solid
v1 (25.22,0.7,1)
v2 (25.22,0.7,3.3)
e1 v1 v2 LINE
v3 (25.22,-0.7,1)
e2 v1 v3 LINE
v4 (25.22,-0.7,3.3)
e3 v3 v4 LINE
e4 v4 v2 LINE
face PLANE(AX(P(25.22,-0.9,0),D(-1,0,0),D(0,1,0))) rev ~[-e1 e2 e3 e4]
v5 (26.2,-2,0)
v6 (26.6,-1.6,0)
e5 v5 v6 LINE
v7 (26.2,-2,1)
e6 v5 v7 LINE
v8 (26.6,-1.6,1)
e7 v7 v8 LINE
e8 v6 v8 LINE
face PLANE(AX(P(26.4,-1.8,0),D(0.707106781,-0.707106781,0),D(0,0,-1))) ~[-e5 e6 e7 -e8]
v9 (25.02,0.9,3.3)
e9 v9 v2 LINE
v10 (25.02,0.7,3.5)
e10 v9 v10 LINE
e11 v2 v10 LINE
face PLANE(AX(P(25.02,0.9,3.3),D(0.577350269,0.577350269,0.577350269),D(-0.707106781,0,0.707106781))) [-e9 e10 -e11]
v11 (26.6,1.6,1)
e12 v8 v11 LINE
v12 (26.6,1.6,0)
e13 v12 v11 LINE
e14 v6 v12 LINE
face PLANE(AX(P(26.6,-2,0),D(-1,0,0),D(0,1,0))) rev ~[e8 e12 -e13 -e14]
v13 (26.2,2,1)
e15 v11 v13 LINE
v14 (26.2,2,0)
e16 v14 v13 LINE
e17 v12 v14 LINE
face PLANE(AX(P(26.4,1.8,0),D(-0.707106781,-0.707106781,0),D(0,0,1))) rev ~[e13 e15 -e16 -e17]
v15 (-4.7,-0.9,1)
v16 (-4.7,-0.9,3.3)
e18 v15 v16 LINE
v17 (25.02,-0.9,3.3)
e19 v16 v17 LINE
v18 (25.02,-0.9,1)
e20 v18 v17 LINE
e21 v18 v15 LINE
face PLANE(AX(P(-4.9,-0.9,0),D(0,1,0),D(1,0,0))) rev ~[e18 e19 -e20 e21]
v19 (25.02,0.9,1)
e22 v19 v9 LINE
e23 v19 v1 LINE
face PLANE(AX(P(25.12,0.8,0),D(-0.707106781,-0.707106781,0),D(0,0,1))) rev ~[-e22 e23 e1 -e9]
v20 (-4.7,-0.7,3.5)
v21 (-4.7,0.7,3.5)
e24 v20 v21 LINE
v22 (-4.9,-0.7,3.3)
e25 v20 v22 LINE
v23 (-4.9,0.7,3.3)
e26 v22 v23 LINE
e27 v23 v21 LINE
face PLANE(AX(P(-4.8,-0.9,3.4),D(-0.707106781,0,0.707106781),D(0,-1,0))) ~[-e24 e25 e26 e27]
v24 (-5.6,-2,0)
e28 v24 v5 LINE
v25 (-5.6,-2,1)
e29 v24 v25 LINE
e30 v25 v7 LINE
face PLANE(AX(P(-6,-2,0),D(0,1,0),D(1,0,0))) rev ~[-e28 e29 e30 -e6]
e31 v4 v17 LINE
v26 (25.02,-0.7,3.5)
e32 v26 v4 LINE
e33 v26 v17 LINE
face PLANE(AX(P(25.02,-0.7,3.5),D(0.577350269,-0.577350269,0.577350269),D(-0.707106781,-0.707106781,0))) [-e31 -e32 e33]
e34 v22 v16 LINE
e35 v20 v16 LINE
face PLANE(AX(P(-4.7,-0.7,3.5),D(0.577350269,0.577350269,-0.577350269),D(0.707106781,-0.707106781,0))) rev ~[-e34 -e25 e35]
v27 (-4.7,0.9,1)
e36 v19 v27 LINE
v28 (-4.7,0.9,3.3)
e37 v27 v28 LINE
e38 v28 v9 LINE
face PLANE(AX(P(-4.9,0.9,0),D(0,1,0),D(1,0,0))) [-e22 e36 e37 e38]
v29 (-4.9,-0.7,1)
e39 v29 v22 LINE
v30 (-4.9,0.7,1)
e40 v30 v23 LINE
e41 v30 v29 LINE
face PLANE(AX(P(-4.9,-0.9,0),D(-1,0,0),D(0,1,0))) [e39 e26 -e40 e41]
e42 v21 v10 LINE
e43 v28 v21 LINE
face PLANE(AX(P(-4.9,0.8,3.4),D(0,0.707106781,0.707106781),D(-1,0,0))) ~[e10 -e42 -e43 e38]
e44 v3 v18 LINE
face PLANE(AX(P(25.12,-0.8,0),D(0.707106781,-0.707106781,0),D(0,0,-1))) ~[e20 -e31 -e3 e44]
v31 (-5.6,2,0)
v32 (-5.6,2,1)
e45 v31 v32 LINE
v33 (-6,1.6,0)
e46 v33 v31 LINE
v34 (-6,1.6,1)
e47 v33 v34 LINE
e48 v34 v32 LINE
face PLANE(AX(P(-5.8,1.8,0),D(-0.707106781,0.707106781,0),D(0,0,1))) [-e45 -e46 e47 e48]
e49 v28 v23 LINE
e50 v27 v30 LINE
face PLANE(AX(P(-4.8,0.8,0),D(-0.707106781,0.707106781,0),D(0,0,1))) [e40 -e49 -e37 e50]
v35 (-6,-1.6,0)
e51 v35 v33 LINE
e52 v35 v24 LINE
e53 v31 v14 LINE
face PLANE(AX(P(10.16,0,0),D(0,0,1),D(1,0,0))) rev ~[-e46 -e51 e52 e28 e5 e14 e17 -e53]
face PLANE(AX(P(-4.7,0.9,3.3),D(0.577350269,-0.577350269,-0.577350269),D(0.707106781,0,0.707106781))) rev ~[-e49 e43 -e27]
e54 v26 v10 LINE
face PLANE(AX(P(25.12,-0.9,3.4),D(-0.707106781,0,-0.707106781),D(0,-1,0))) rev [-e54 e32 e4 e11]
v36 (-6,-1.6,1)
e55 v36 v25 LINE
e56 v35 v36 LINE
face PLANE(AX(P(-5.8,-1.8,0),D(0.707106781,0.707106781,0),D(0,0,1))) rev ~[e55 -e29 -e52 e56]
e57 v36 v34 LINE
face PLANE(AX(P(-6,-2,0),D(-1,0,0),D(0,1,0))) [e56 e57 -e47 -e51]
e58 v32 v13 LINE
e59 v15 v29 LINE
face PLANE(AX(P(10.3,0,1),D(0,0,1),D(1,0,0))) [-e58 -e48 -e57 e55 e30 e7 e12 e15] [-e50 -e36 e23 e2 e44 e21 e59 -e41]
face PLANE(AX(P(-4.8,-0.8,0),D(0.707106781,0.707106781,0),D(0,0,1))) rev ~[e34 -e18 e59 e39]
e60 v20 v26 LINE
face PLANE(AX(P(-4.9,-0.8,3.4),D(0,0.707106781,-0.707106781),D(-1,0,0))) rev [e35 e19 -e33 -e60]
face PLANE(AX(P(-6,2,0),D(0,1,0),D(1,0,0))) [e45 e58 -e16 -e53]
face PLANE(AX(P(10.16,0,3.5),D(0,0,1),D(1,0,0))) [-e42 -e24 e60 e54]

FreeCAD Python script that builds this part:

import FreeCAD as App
import Part
import Sketcher
from FreeCAD import Vector


def edges_at(feature, points):
    """Names of the edges that pass closest to the given points."""
    edges = feature.Shape.Edges
    near = lambda p: min(range(len(edges)), key=lambda i: edges[i].distToShape(Part.Vertex(*p))[0])
    return sorted({f"Edge{near(p) + 1}" for p in points})


def add_polygon(sketch, points):
    """Adds a closed chain of lines whose ends are joined by coincident constraints."""
    first, n = sketch.GeometryCount, len(points)
    for a, b in zip(points, points[1:] + points[:1]):
        sketch.addGeometry(Part.LineSegment(App.Vector(*a, 0), App.Vector(*b, 0)), False)
    for i in range(n):
        sketch.addConstraint(Sketcher.Constraint("Coincident", first + i, 2, first + (i + 1) % n, 1))

doc = App.newDocument("Part")
params = doc.addObject("Spreadsheet::Sheet", "Params")
for row, (alias, value) in enumerate([
    ("sketch1_height", "1.8 mm"),
    ("sketch1_width", "30.12 mm"),
    ("pad1_length", "3.5 mm"),
    ("chamfer_size", "0.2 mm"),
    ("sketch2_height", "4 mm"),
    ("sketch2_width", "32.6 mm"),
    ("pad2_length", "1 mm"),
    ("chamfer2_size", "0.4 mm"),
], start=1):
    params.set(f"A{row}", alias)
    params.set(f"B{row}", "=" + value)
    params.setAlias(f"B{row}", alias)

body = doc.addObject("PartDesign::Body", "Body")

# Sketch on XY plane
sketch1 = doc.addObject("Sketcher::SketchObject", "Sketch")
body.addObject(sketch1)
sketch1.AttachmentSupport = (doc.XY_Plane, [""])
sketch1.MapMode = "FlatFace"
add_polygon(sketch1, [(-4.9, 0.9), (-4.9, -0.9), (25.2, -0.9), (25.2, 0.9)])  # lines 0-3
sketch1.addConstraint([
    Sketcher.Constraint("Vertical", 0),
    Sketcher.Constraint("Horizontal", 1),
    Sketcher.Constraint("Vertical", 2),
    Sketcher.Constraint("Horizontal", 3),
    Sketcher.Constraint("DistanceY", 0, 2, 0, 1, 1.8),
    Sketcher.Constraint("DistanceX", 1, 1, 1, 2, 30.12),
    Sketcher.Constraint("DistanceX", 0, 2, -1, 1, 4.9),
    Sketcher.Constraint("DistanceY", 0, 2, -1, 1, 0.9),
])
sketch1.setExpression("Constraints[8]", "Params.sketch1_height")
sketch1.setExpression("Constraints[9]", "Params.sketch1_width")
pad1 = doc.addObject("PartDesign::Pad", "Pad")
body.addObject(pad1)
pad1.Profile = sketch1
pad1.setExpression("Length", "Params.pad1_length")
doc.recompute()

chamfer = doc.addObject("PartDesign::Chamfer", "Chamfer")
body.addObject(chamfer)
chamfer.Base = (pad1, edges_at(pad1, [
    (-4.9, -0.9, 1.75),
    (-4.9, 0, 3.5),
    (-4.9, 0.9, 1.75),
    (25.22, -0.9, 1.75),
    (25.22, 0, 3.5),
    (25.22, 0.9, 1.75),
    (10.16, -0.9, 3.5),
    (10.16, 0.9, 3.5),
]))
chamfer.setExpression("Size", "Params.chamfer_size")
body2 = doc.addObject("PartDesign::Body", "Body001")

# Sketch on XY plane
sketch2 = doc.addObject("Sketcher::SketchObject", "Sketch001")
body2.addObject(sketch2)
sketch2.AttachmentSupport = (doc.getObject("XY_Plane001"), [""])
sketch2.MapMode = "FlatFace"
add_polygon(sketch2, [(-6, 2), (-6, -2), (26.6, -2), (26.6, 2)])  # lines 0-3
sketch2.addConstraint([
    Sketcher.Constraint("Vertical", 0),
    Sketcher.Constraint("Horizontal", 1),
    Sketcher.Constraint("Vertical", 2),
    Sketcher.Constraint("Horizontal", 3),
    Sketcher.Constraint("DistanceY", 0, 2, 0, 1, 4.0),
    Sketcher.Constraint("DistanceX", 1, 1, 1, 2, 32.6),
    Sketcher.Constraint("DistanceX", 0, 2, -1, 1, 6.0),
    Sketcher.Constraint("DistanceY", 0, 2, -1, 1, 2.0),
])
sketch2.setExpression("Constraints[8]", "Params.sketch2_height")
sketch2.setExpression("Constraints[9]", "Params.sketch2_width")
pad2 = doc.addObject("PartDesign::Pad", "Pad001")
body2.addObject(pad2)
pad2.Profile = sketch2
pad2.setExpression("Length", "Params.pad2_length")
doc.recompute()

chamfer2 = doc.addObject("PartDesign::Chamfer", "Chamfer001")
body2.addObject(chamfer2)
chamfer2.Base = (pad2, edges_at(pad2, [
    (-6, -2, 0.5),
    (-6, 2, 0.5),
    (26.6, -2, 0.5),
    (26.6, 2, 0.5),
]))
chamfer2.setExpression("Size", "Params.chamfer2_size")
doc.recompute()

boolean = doc.addObject("PartDesign::Boolean", "Boolean")
body2.addObject(boolean)
boolean.Type = "Fuse"
boolean.addObjects([body])

doc.recompute()
